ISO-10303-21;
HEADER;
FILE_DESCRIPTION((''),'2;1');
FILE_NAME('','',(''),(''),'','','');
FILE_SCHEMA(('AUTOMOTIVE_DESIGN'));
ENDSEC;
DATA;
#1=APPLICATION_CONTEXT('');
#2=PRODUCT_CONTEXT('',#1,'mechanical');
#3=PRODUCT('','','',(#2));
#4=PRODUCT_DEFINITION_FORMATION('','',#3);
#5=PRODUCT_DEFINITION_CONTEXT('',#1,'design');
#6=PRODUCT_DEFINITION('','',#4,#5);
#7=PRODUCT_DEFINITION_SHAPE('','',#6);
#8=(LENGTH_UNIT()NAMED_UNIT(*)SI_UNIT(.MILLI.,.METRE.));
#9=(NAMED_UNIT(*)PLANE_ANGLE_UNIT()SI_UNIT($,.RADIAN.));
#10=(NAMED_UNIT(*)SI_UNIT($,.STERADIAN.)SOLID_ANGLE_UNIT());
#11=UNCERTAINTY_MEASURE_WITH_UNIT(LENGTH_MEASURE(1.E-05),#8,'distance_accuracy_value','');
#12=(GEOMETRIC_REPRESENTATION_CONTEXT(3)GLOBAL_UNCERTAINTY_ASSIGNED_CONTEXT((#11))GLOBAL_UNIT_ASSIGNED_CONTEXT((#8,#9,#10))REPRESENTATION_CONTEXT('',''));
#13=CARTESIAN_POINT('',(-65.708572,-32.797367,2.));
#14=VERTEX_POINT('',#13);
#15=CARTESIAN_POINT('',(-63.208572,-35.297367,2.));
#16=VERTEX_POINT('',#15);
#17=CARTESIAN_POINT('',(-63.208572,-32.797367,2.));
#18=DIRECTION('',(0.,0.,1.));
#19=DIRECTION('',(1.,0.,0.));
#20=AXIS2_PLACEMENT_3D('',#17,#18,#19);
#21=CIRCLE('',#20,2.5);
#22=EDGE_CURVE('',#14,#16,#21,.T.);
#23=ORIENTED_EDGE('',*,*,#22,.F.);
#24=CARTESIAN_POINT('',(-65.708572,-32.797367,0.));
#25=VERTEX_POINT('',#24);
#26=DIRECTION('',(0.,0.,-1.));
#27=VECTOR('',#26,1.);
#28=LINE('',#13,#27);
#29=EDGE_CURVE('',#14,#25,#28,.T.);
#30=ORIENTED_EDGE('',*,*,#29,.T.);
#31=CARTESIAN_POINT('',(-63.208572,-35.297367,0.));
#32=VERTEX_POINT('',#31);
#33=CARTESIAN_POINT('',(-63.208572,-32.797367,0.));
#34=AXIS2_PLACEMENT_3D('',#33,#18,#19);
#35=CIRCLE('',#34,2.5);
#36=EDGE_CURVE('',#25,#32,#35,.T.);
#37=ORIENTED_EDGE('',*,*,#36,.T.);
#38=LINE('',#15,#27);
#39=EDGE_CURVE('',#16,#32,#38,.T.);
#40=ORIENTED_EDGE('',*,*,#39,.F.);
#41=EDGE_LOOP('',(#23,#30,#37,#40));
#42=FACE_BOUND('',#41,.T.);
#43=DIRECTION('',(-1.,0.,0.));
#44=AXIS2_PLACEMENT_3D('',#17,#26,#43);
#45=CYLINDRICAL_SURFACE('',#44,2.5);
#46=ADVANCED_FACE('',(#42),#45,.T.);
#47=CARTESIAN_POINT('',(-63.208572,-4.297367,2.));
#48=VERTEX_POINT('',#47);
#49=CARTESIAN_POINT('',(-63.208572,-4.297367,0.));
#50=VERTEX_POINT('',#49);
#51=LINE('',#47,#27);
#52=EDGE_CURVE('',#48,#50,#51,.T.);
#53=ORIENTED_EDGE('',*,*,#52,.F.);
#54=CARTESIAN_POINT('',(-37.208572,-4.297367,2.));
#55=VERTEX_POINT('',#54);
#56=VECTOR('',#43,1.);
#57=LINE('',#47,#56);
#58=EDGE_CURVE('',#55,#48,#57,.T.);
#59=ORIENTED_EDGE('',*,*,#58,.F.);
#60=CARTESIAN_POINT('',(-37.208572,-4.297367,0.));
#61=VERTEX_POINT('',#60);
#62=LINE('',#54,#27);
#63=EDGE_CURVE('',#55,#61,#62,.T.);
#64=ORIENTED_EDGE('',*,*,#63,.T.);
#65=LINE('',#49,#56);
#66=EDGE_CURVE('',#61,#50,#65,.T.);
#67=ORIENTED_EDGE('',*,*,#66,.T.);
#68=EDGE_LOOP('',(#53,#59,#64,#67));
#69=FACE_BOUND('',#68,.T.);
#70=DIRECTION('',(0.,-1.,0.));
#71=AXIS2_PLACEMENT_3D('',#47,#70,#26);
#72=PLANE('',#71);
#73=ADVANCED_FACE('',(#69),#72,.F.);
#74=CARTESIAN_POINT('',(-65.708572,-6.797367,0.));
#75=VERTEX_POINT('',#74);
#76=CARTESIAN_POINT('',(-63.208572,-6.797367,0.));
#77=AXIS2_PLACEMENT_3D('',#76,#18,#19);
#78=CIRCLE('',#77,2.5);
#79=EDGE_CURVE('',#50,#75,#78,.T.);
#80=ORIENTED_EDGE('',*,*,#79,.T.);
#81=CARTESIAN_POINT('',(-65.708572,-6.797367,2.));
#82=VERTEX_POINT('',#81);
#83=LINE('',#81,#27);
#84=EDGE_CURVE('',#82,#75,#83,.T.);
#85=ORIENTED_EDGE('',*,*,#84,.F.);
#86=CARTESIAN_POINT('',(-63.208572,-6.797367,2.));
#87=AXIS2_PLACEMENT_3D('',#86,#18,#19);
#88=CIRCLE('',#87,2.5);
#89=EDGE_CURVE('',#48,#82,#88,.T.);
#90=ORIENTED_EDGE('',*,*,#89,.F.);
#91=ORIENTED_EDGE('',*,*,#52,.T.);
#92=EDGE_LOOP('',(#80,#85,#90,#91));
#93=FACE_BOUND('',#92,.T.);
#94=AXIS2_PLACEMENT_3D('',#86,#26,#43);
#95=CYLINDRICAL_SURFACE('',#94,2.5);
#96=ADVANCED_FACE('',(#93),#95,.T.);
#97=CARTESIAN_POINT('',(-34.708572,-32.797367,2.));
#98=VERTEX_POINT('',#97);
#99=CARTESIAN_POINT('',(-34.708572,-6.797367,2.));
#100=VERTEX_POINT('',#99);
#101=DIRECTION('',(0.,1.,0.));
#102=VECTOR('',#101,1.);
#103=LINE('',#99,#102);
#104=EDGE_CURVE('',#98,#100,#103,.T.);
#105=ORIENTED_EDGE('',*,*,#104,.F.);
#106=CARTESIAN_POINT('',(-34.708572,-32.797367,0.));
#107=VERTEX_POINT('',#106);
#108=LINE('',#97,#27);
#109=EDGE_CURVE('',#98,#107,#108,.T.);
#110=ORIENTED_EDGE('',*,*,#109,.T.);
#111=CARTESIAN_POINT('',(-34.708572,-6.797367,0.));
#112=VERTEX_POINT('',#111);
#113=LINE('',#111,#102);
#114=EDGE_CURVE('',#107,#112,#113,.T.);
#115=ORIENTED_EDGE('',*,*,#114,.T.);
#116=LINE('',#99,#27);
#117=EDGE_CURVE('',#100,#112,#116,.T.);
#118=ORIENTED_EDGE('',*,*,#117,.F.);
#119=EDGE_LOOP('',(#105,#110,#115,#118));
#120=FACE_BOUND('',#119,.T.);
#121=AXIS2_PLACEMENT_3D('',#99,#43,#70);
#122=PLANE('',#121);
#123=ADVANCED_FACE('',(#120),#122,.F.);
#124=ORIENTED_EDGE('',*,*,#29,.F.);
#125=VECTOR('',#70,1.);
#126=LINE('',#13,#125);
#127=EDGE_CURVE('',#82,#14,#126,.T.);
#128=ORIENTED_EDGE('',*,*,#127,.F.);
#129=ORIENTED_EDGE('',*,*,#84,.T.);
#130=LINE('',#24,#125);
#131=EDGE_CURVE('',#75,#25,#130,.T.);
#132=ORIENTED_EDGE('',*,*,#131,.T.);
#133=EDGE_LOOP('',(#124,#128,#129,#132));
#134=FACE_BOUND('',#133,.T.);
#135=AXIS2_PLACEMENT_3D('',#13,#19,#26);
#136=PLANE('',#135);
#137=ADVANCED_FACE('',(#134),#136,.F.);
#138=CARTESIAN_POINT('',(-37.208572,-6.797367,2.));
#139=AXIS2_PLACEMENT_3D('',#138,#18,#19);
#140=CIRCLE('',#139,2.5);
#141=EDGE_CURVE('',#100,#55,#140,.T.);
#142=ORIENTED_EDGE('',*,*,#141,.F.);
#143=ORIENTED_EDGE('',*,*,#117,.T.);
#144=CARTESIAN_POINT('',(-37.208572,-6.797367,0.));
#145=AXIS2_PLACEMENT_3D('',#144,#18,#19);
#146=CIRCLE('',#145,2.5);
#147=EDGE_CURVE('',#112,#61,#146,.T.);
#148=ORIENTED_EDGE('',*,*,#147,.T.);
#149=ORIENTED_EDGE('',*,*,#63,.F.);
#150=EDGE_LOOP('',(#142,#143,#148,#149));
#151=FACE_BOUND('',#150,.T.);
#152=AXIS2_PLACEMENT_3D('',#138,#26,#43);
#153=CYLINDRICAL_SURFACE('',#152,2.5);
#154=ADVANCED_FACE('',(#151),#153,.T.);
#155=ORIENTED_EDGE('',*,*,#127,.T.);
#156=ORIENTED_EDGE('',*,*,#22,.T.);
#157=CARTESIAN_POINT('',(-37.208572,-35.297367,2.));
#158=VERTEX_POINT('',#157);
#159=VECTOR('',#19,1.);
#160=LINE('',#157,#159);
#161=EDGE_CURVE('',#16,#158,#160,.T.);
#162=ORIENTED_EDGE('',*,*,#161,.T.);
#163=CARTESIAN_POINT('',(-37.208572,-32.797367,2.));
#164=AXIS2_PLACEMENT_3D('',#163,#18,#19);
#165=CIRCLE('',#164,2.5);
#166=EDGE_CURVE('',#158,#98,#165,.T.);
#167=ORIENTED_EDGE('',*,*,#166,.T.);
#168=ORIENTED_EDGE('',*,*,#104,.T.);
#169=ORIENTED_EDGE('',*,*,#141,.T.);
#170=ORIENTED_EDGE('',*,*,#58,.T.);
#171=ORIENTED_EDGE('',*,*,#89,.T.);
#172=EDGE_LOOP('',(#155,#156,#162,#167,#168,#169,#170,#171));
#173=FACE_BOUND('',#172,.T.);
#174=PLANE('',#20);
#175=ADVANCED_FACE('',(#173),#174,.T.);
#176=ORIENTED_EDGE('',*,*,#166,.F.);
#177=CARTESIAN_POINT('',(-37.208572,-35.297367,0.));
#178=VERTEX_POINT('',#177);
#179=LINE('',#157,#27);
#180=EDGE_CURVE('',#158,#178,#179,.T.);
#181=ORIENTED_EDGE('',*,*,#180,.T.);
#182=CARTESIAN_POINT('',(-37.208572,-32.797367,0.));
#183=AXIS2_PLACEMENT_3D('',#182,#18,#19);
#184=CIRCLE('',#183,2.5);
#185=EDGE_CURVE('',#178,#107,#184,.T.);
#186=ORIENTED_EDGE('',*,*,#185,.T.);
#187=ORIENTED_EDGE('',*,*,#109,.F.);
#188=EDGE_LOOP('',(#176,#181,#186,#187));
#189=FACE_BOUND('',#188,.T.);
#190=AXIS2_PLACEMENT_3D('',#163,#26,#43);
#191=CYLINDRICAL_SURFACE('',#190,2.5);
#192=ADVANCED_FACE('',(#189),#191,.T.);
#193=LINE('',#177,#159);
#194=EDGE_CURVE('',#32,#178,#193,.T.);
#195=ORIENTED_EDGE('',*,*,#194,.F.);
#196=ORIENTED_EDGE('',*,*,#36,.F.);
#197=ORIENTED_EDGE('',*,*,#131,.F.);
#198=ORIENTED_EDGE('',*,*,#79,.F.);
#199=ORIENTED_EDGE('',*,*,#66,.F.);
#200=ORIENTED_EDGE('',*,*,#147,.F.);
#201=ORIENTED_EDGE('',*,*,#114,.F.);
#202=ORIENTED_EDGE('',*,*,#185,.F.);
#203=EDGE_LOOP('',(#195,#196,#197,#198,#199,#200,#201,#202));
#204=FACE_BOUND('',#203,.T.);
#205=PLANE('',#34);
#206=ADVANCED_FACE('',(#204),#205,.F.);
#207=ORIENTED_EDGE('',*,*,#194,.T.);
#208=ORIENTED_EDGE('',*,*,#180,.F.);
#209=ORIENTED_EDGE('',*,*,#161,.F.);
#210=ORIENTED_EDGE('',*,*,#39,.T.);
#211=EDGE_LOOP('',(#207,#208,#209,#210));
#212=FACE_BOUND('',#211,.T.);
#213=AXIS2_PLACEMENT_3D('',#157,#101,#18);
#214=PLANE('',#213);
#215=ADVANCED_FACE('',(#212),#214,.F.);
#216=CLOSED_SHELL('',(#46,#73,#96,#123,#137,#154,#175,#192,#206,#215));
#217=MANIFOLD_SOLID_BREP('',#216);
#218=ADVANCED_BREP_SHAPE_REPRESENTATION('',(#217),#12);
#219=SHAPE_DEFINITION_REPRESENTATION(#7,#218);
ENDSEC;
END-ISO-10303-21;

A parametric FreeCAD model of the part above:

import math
import FreeCAD as App
import Part
import Sketcher

V = App.Vector

doc = App.newDocument("Part")
body = doc.addObject("PartDesign::Body", "Body")

# Sketch on XY plane
sketch1 = body.newObject("Sketcher::SketchObject", "Sketch")
sketch1.AttachmentSupport = (doc.getObject("XY_Plane"), [""])
sketch1.MapMode = "FlatFace"
sketch1.addGeometry([
    Part.LineSegment(V(-63.2, -35.3, 0), V(-37.2, -35.3, 0)),  # 0
    Part.ArcOfCircle(Part.Circle(V(-37.2, -32.8, 0), V(0, 0, 1), 2.5), math.radians(-90), math.radians(0)),  # 1
    Part.LineSegment(V(-34.7, -32.8, 0), V(-34.7, -6.8, 0)),  # 2
    Part.ArcOfCircle(Part.Circle(V(-37.2, -6.8, 0), V(0, 0, 1), 2.5), math.radians(0), math.radians(90)),  # 3
    Part.LineSegment(V(-37.2, -4.3, 0), V(-63.2, -4.3, 0)),  # 4
    Part.ArcOfCircle(Part.Circle(V(-63.2, -6.8, 0), V(0, 0, 1), 2.5), math.radians(90), math.radians(180)),  # 5
    Part.LineSegment(V(-65.7, -6.8, 0), V(-65.7, -32.8, 0)),  # 6
    Part.ArcOfCircle(Part.Circle(V(-63.2, -32.8, 0), V(0, 0, 1), 2.5), math.radians(-180), math.radians(-90)),  # 7
], False)
sketch1.addConstraint([
    Sketcher.Constraint("Tangent", 0, 2, 1, 1),
    Sketcher.Constraint("Tangent", 1, 2, 2, 1),
    Sketcher.Constraint("Tangent", 2, 2, 3, 1),
    Sketcher.Constraint("Tangent", 3, 2, 4, 1),
    Sketcher.Constraint("Tangent", 4, 2, 5, 1),
    Sketcher.Constraint("Tangent", 5, 2, 6, 1),
    Sketcher.Constraint("Tangent", 6, 2, 7, 1),
    Sketcher.Constraint("Tangent", 7, 2, 0, 1),
    Sketcher.Constraint("Horizontal", 0),
    Sketcher.Constraint("Vertical", 2),
    Sketcher.Constraint("Horizontal", 4),
    Sketcher.Constraint("Vertical", 6),
    Sketcher.Constraint("Equal", 1, 3),
    Sketcher.Constraint("Equal", 3, 5),
    Sketcher.Constraint("Equal", 5, 7),
    Sketcher.Constraint("Equal", 4, 2),
    Sketcher.Constraint("Radius", 1, 2.5),
    Sketcher.Constraint("DistanceX", 0, 1, 0, 2, 26.0),
    Sketcher.Constraint("DistanceX", 1, 3, -1, 1, 37.208572),
    Sketcher.Constraint("DistanceY", 1, 3, -1, 1, 32.797367),
])
pad1 = body.newObject("PartDesign::Pad", "Pad")
pad1.Profile = sketch1
pad1.Length = 2

doc.recompute()
